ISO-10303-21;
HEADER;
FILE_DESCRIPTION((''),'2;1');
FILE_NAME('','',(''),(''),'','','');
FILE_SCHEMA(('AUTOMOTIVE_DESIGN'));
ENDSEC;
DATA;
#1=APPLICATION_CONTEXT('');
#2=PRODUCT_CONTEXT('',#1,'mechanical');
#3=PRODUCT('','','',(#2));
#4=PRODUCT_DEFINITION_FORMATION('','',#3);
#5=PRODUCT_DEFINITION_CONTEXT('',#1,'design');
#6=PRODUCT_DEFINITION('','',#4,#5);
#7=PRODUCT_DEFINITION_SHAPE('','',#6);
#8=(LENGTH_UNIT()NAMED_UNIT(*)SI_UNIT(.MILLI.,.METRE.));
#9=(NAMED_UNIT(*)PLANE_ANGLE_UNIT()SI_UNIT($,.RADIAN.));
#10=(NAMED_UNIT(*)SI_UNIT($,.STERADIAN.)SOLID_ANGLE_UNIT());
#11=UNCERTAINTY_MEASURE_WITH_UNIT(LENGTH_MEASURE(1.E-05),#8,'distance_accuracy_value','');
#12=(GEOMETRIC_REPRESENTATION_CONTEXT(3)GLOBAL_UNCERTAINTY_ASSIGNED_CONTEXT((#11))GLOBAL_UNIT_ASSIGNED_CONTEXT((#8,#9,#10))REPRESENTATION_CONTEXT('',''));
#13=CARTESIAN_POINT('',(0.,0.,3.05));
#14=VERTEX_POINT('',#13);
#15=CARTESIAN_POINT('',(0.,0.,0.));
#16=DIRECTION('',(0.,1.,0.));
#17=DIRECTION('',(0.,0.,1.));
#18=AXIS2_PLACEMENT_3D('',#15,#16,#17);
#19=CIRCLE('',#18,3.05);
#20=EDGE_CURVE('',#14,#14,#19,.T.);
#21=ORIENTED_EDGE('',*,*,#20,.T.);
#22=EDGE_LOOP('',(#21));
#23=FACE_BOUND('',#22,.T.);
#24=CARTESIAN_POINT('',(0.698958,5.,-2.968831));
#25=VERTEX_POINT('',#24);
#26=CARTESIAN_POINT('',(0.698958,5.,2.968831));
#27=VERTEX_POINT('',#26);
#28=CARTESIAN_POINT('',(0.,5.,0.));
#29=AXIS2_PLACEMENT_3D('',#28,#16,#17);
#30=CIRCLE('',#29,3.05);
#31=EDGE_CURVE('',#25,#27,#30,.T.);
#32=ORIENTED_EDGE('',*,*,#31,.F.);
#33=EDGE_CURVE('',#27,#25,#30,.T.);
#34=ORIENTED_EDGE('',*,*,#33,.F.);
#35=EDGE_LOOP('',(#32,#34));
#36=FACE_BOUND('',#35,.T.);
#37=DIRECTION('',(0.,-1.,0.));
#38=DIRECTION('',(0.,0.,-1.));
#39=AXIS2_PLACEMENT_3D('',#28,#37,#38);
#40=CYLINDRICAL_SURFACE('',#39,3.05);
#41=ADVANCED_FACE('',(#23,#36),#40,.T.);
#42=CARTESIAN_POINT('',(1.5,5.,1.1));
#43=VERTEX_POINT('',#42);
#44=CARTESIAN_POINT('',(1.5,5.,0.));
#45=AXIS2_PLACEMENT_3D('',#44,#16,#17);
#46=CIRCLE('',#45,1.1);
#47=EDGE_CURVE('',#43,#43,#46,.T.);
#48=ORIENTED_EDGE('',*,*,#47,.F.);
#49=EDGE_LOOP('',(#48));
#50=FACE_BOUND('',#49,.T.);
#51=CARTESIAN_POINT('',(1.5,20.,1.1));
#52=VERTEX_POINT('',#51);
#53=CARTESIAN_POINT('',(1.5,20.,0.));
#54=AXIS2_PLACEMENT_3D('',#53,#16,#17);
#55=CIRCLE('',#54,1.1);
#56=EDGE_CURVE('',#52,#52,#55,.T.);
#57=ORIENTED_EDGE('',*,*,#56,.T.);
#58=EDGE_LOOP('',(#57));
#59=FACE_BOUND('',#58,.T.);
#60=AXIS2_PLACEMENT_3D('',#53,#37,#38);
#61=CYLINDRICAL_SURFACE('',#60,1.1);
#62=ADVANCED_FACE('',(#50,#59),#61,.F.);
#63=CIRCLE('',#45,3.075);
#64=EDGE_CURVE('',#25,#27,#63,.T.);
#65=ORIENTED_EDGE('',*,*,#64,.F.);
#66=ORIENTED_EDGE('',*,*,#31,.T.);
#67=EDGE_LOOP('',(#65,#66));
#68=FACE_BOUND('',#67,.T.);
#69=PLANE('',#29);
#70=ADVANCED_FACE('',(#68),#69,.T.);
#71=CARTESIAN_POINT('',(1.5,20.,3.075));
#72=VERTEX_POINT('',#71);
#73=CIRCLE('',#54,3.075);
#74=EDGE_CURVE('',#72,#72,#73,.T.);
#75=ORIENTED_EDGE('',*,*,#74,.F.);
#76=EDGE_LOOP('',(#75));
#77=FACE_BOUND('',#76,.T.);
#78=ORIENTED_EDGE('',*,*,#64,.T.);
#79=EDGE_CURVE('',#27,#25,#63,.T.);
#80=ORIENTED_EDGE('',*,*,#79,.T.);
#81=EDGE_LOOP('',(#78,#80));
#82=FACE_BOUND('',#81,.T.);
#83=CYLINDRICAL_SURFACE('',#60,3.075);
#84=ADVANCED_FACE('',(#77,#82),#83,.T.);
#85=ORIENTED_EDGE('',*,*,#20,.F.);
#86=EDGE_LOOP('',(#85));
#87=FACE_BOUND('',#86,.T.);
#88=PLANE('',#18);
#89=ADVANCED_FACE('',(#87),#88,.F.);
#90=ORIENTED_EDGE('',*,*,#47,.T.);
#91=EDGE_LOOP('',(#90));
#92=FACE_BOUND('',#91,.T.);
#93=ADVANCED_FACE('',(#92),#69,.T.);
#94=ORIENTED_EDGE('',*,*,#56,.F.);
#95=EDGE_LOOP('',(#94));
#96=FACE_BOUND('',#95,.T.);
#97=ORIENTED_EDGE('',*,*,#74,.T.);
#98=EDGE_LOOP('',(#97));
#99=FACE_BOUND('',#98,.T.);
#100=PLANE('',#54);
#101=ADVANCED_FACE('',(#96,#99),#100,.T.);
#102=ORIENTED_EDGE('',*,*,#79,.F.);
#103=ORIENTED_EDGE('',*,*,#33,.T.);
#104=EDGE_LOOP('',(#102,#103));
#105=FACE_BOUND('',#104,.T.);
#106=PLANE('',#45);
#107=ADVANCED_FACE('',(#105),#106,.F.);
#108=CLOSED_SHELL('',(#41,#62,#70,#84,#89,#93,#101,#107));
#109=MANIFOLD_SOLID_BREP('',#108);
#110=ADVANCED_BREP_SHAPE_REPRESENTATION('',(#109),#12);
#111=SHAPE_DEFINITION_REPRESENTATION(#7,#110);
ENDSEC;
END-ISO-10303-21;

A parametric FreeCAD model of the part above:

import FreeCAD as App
import Part
import Sketcher
Q = App.Units.Quantity

doc = App.newDocument("Part")
params = doc.addObject("Spreadsheet::Sheet", "Params")
for row, (alias, value) in enumerate([
    ("sketch1_diameter", "6.1 mm"),
    ("pad1_length", "5 mm"),
    ("sketch2_diameter", "2.2 mm"),
    ("sketch2_diameter2", "6.15 mm"),
    ("pad2_length", "15 mm"),
], start=1):
    params.set(f"A{row}", alias)
    params.set(f"B{row}", "=" + value)
    params.setAlias(f"B{row}", alias)

body = doc.addObject("PartDesign::Body", "Body")

# Sketch on XZ plane
sketch1 = body.newObject("Sketcher::SketchObject", "Sketch")
sketch1.AttachmentSupport = (doc.getObject("XZ_Plane"), [""])
sketch1.MapMode = "FlatFace"
sketch1.addGeometry(Part.Circle(App.Vector(0, 0, 0), App.Vector(0, 0, 1), 3), False)
sketch1.addConstraint(Sketcher.Constraint("Coincident", 0, 3, -1, 1))
sketch1.addConstraint(Sketcher.Constraint("Diameter", 0, Q("6.1 mm")))
sketch1.setExpression("Constraints[1]", "Params.sketch1_diameter")
pad1 = body.newObject("PartDesign::Pad", "Pad")
pad1.Profile = sketch1
pad1.setExpression("Length", "Params.pad1_length")
pad1.Reversed = True

# Sketch on XZ plane
sketch2 = body.newObject("Sketcher::SketchObject", "Sketch001")
sketch2.AttachmentSupport = (doc.getObject("XZ_Plane"), [""])
sketch2.MapMode = "FlatFace"
sketch2.AttachmentOffset = App.Placement(App.Vector(0, 0, -5), App.Rotation())
sketch2.addGeometry(Part.Circle(App.Vector(1.5, 0, 0), App.Vector(0, 0, 1), 3.1), False)
sketch2.addGeometry(Part.Circle(App.Vector(1.5, 0, 0), App.Vector(0, 0, 1), 1.1), False)
sketch2.addConstraint(Sketcher.Constraint("Coincident", 1, 3, 0, 3))
sketch2.addConstraint(Sketcher.Constraint("PointOnObject", 0, 3, -1))
sketch2.addConstraint(Sketcher.Constraint("Diameter", 1, Q("2.2 mm")))
sketch2.addConstraint(Sketcher.Constraint("Diameter", 0, Q("6.15 mm")))
sketch2.addConstraint(Sketcher.Constraint("DistanceX", -1, 1, 0, 3, Q("1.5 mm")))
sketch2.setExpression("Constraints[2]", "Params.sketch2_diameter")
sketch2.setExpression("Constraints[3]", "Params.sketch2_diameter2")
pad2 = body.newObject("PartDesign::Pad", "Pad001")
pad2.Profile = sketch2
pad2.setExpression("Length", "Params.pad2_length")
pad2.Reversed = True

doc.recompute()
